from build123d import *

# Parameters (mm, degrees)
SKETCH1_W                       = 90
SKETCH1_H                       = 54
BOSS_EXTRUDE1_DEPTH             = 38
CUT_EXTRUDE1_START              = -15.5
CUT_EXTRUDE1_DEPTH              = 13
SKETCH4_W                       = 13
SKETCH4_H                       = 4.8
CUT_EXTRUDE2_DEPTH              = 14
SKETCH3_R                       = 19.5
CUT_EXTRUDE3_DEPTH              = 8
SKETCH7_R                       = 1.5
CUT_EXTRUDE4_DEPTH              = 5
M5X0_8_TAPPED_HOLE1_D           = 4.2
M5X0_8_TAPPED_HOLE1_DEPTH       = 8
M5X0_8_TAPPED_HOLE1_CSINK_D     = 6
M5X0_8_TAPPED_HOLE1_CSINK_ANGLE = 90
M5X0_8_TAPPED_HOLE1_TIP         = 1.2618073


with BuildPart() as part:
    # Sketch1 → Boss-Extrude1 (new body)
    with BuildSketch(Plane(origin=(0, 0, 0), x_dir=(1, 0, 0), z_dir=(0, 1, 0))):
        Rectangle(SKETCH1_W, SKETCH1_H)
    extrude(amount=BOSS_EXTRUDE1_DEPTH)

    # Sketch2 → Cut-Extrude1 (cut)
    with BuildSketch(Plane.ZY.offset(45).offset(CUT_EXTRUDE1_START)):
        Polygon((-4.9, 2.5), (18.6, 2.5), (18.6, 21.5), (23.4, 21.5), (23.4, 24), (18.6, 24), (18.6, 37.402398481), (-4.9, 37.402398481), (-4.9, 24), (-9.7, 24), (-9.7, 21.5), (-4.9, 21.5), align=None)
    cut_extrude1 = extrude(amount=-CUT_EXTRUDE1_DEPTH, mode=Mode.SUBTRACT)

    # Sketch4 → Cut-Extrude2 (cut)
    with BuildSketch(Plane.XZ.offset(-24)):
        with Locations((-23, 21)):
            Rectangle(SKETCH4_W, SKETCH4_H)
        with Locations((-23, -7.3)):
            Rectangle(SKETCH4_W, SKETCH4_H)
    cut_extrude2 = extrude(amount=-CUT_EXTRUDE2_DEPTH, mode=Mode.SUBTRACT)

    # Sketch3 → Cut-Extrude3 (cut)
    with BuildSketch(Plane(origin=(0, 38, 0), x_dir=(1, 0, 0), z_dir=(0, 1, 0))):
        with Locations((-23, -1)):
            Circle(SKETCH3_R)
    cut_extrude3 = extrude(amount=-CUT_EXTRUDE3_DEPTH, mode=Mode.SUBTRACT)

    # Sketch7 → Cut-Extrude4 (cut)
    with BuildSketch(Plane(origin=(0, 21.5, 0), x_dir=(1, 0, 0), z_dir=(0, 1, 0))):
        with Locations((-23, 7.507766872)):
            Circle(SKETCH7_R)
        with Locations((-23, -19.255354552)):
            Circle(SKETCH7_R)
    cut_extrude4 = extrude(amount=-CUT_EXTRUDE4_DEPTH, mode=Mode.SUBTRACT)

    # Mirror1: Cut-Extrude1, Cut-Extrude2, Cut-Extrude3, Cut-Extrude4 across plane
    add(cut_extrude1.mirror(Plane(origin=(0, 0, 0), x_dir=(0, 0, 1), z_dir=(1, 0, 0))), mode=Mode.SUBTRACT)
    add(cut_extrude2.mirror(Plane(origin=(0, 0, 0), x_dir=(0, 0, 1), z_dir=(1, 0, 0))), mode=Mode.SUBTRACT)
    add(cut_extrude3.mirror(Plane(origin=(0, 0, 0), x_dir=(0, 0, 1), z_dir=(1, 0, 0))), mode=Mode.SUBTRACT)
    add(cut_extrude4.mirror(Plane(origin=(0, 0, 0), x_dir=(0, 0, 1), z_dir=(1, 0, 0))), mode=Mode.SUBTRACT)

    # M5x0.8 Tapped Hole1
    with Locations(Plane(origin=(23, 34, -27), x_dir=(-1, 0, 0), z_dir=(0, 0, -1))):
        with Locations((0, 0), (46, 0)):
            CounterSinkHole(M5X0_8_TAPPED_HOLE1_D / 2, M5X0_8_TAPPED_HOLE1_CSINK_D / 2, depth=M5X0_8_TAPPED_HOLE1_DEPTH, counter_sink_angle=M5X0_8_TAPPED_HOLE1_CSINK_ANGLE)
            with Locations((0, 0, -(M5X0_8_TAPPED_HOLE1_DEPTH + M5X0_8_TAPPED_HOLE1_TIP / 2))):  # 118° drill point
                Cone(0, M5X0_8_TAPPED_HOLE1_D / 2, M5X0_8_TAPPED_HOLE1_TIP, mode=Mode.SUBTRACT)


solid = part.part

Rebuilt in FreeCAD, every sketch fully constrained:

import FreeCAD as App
import Part
import Sketcher

doc = App.newDocument("Part")
body = doc.addObject("PartDesign::Body", "Body")

sketch1 = body.newObject("Sketcher::SketchObject", "Sketch")
sketch1.AttachmentSupport = (doc.getObject("XZ_Plane"), [""])
sketch1.MapMode = "FlatFace"
sketch1.addGeometry(Part.LineSegment(App.Vector(-45, -27, 0), App.Vector(-45, 27, 0)), False)
sketch1.addGeometry(Part.LineSegment(App.Vector(-45, 27, 0), App.Vector(45, 27, 0)), False)
sketch1.addGeometry(Part.LineSegment(App.Vector(45, 27, 0), App.Vector(45, -27, 0)), False)
sketch1.addGeometry(Part.LineSegment(App.Vector(45, -27, 0), App.Vector(-45, -27, 0)), False)
sketch1.addConstraint(Sketcher.Constraint("Coincident", 0, 2, 1, 1))
sketch1.addConstraint(Sketcher.Constraint("Coincident", 1, 2, 2, 1))
sketch1.addConstraint(Sketcher.Constraint("Coincident", 2, 2, 3, 1))
sketch1.addConstraint(Sketcher.Constraint("Coincident", 3, 2, 0, 1))
sketch1.addConstraint(Sketcher.Constraint("Vertical", 0))
sketch1.addConstraint(Sketcher.Constraint("Horizontal", 1))
sketch1.addConstraint(Sketcher.Constraint("Vertical", 2))
sketch1.addConstraint(Sketcher.Constraint("Horizontal", 3))
sketch1.addConstraint(Sketcher.Constraint("Symmetric", 0, 2, 2, 2, -1, 1))
sketch1.addConstraint(Sketcher.Constraint("DistanceX", 1, 1, 1, 2, 90.0))
sketch1.addConstraint(Sketcher.Constraint("DistanceY", 0, 1, 0, 2, 54.0))
pad1 = body.newObject("PartDesign::Pad", "Pad")
pad1.Profile = sketch1
pad1.Length = 38
pad1.Reversed = True

sketch2 = body.newObject("Sketcher::SketchObject", "Sketch001")
sketch2.AttachmentSupport = (doc.getObject("YZ_Plane"), [""])
sketch2.MapMode = "FlatFace"
sketch2.AttachmentOffset = App.Placement(App.Vector(0, 0, -29.5), App.Rotation())
sketch2.addGeometry(Part.LineSegment(App.Vector(2.5, -4.9, 0), App.Vector(2.5, 18.6, 0)), False)
sketch2.addGeometry(Part.LineSegment(App.Vector(2.5, 18.6, 0), App.Vector(21.5, 18.6, 0)), False)
sketch2.addGeometry(Part.LineSegment(App.Vector(21.5, 18.6, 0), App.Vector(21.5, 23.4, 0)), False)
sketch2.addGeometry(Part.LineSegment(App.Vector(21.5, 23.4, 0), App.Vector(24, 23.4, 0)), False)
sketch2.addGeometry(Part.LineSegment(App.Vector(24, 23.4, 0), App.Vector(24, 18.6, 0)), False)
sketch2.addGeometry(Part.LineSegment(App.Vector(24, 18.6, 0), App.Vector(37.4, 18.6, 0)), False)
sketch2.addGeometry(Part.LineSegment(App.Vector(37.4, 18.6, 0), App.Vector(37.4, -4.9, 0)), False)
sketch2.addGeometry(Part.LineSegment(App.Vector(37.4, -4.9, 0), App.Vector(24, -4.9, 0)), False)
sketch2.addGeometry(Part.LineSegment(App.Vector(24, -4.9, 0), App.Vector(24, -9.7, 0)), False)
sketch2.addGeometry(Part.LineSegment(App.Vector(24, -9.7, 0), App.Vector(21.5, -9.7, 0)), False)
sketch2.addGeometry(Part.LineSegment(App.Vector(21.5, -9.7, 0), App.Vector(21.5, -4.9, 0)), False)
sketch2.addGeometry(Part.LineSegment(App.Vector(21.5, -4.9, 0), App.Vector(2.5, -4.9, 0)), False)
sketch2.addConstraint(Sketcher.Constraint("Coincident", 0, 2, 1, 1))
sketch2.addConstraint(Sketcher.Constraint("Coincident", 1, 2, 2, 1))
sketch2.addConstraint(Sketcher.Constraint("Coincident", 2, 2, 3, 1))
sketch2.addConstraint(Sketcher.Constraint("Coincident", 3, 2, 4, 1))
sketch2.addConstraint(Sketcher.Constraint("Coincident", 4, 2, 5, 1))
sketch2.addConstraint(Sketcher.Constraint("Coincident", 5, 2, 6, 1))
sketch2.addConstraint(Sketcher.Constraint("Coincident", 6, 2, 7, 1))
sketch2.addConstraint(Sketcher.Constraint("Coincident", 7, 2, 8, 1))
sketch2.addConstraint(Sketcher.Constraint("Coincident", 8, 2, 9, 1))
sketch2.addConstraint(Sketcher.Constraint("Coincident", 9, 2, 10, 1))
sketch2.addConstraint(Sketcher.Constraint("Coincident", 10, 2, 11, 1))
sketch2.addConstraint(Sketcher.Constraint("Coincident", 11, 2, 0, 1))
sketch2.addConstraint(Sketcher.Constraint("Vertical", 0))
sketch2.addConstraint(Sketcher.Constraint("Horizontal", 1))
sketch2.addConstraint(Sketcher.Constraint("Vertical", 2))
sketch2.addConstraint(Sketcher.Constraint("Horizontal", 3))
sketch2.addConstraint(Sketcher.Constraint("Vertical", 4))
sketch2.addConstraint(Sketcher.Constraint("Horizontal", 5))
sketch2.addConstraint(Sketcher.Constraint("Vertical", 6))
sketch2.addConstraint(Sketcher.Constraint("Horizontal", 7))
sketch2.addConstraint(Sketcher.Constraint("Vertical", 8))
sketch2.addConstraint(Sketcher.Constraint("Horizontal", 9))
sketch2.addConstraint(Sketcher.Constraint("Vertical", 10))
sketch2.addConstraint(Sketcher.Constraint("Horizontal", 11))
sketch2.addConstraint(Sketcher.Constraint("Horizontal", 1, 2, 4, 2))
sketch2.addConstraint(Sketcher.Constraint("Horizontal", 7, 2, 10, 2))
sketch2.addConstraint(Sketcher.Constraint("Vertical", 4, 2, 7, 2))
sketch2.addConstraint(Sketcher.Constraint("Vertical", 2, 2, 9, 2))
sketch2.addConstraint(Sketcher.Constraint("Equal", 4, 8))
sketch2.addConstraint(Sketcher.Constraint("DistanceX", 1, 1, 1, 2, 19.0))
sketch2.addConstraint(Sketcher.Constraint("DistanceX", 3, 1, 3, 2, 2.5))
sketch2.addConstraint(Sketcher.Constraint("DistanceY", 0, 1, 0, 2, 23.5))
sketch2.addConstraint(Sketcher.Constraint("DistanceY", 2, 1, 2, 2, 4.8))
sketch2.addConstraint(Sketcher.Constraint("DistanceX", -1, 1, 3, 2, 24.0))
sketch2.addConstraint(Sketcher.Constraint("DistanceY", -1, 1, 0, 2, 18.6))
sketch2.addConstraint(Sketcher.Constraint("DistanceX", 5, 1, 5, 2, 13.402398))
pocket1 = body.newObject("PartDesign::Pocket", "Pocket")
pocket1.Profile = sketch2
pocket1.Length = 13
pocket1.Reversed = True

sketch3 = body.newObject("Sketcher::SketchObject", "Sketch002")
sketch3.AttachmentSupport = (doc.getObject("XZ_Plane"), [""])
sketch3.MapMode = "FlatFace"
sketch3.AttachmentOffset = App.Placement(App.Vector(0, 0, -24), App.Rotation())
sketch3.addGeometry(Part.LineSegment(App.Vector(-29.5, 23.4, 0), App.Vector(-29.5, 18.6, 0)), False)
sketch3.addGeometry(Part.LineSegment(App.Vector(-29.5, 18.6, 0), App.Vector(-16.5, 18.6, 0)), False)
sketch3.addGeometry(Part.LineSegment(App.Vector(-16.5, 18.6, 0), App.Vector(-16.5, 23.4, 0)), False)
sketch3.addGeometry(Part.LineSegment(App.Vector(-16.5, 23.4, 0), App.Vector(-29.5, 23.4, 0)), False)
sketch3.addGeometry(Part.LineSegment(App.Vector(-29.5, -4.9, 0), App.Vector(-29.5, -9.7, 0)), False)
sketch3.addGeometry(Part.LineSegment(App.Vector(-29.5, -9.7, 0), App.Vector(-16.5, -9.7, 0)), False)
sketch3.addGeometry(Part.LineSegment(App.Vector(-16.5, -9.7, 0), App.Vector(-16.5, -4.9, 0)), False)
sketch3.addGeometry(Part.LineSegment(App.Vector(-16.5, -4.9, 0), App.Vector(-29.5, -4.9, 0)), False)
sketch3.addConstraint(Sketcher.Constraint("Coincident", 0, 2, 1, 1))
sketch3.addConstraint(Sketcher.Constraint("Coincident", 1, 2, 2, 1))
sketch3.addConstraint(Sketcher.Constraint("Coincident", 2, 2, 3, 1))
sketch3.addConstraint(Sketcher.Constraint("Coincident", 3, 2, 0, 1))
sketch3.addConstraint(Sketcher.Constraint("Coincident", 4, 2, 5, 1))
sketch3.addConstraint(Sketcher.Constraint("Coincident", 5, 2, 6, 1))
sketch3.addConstraint(Sketcher.Constraint("Coincident", 6, 2, 7, 1))
sketch3.addConstraint(Sketcher.Constraint("Coincident", 7, 2, 4, 1))
sketch3.addConstraint(Sketcher.Constraint("Vertical", 0))
sketch3.addConstraint(Sketcher.Constraint("Horizontal", 1))
sketch3.addConstraint(Sketcher.Constraint("Vertical", 2))
sketch3.addConstraint(Sketcher.Constraint("Horizontal", 3))
sketch3.addConstraint(Sketcher.Constraint("Vertical", 4))
sketch3.addConstraint(Sketcher.Constraint("Horizontal", 5))
sketch3.addConstraint(Sketcher.Constraint("Vertical", 6))
sketch3.addConstraint(Sketcher.Constraint("Horizontal", 7))
sketch3.addConstraint(Sketcher.Constraint("Vertical", 3, 2, 4, 2))
sketch3.addConstraint(Sketcher.Constraint("Vertical", 2, 2, 5, 2))
sketch3.addConstraint(Sketcher.Constraint("Equal", 2, 4))
sketch3.addConstraint(Sketcher.Constraint("DistanceX", 1, 1, 1, 2, 13.0))
sketch3.addConstraint(Sketcher.Constraint("DistanceY", 0, 2, 0, 1, 4.8))
sketch3.addConstraint(Sketcher.Constraint("DistanceX", 0, 2, -1, 1, 29.5))
sketch3.addConstraint(Sketcher.Constraint("DistanceY", -1, 1, 0, 2, 18.6))
sketch3.addConstraint(Sketcher.Constraint("DistanceY", 4, 2, -1, 1, 9.7))
pocket2 = body.newObject("PartDesign::Pocket", "Pocket001")
pocket2.Profile = sketch3
pocket2.Length = 14

sketch4 = body.newObject("Sketcher::SketchObject", "Sketch003")
sketch4.AttachmentSupport = (doc.getObject("XZ_Plane"), [""])
sketch4.MapMode = "FlatFace"
sketch4.AttachmentOffset = App.Placement(App.Vector(0, 0, -38), App.Rotation())
sketch4.addGeometry(Part.Circle(App.Vector(-23, 1, 0), App.Vector(0, 0, 1), 20), False)
sketch4.addConstraint(Sketcher.Constraint("Diameter", 0, 39.0))
sketch4.addConstraint(Sketcher.Constraint("DistanceX", 0, 3, -1, 1, 23.0))
sketch4.addConstraint(Sketcher.Constraint("DistanceY", -1, 1, 0, 3, 1.0))
pocket3 = body.newObject("PartDesign::Pocket", "Pocket002")
pocket3.Profile = sketch4
pocket3.Length = 8
pocket3.Reversed = True

sketch5 = body.newObject("Sketcher::SketchObject", "Sketch004")
sketch5.AttachmentSupport = (doc.getObject("XZ_Plane"), [""])
sketch5.MapMode = "FlatFace"
sketch5.AttachmentOffset = App.Placement(App.Vector(0, 0, -21.5), App.Rotation())
sketch5.addGeometry(Part.Circle(App.Vector(-23, -7.5, 0), App.Vector(0, 0, 1), 1.5), False)
sketch5.addGeometry(Part.Circle(App.Vector(-23, 19.3, 0), App.Vector(0, 0, 1), 1.5), False)
sketch5.addConstraint(Sketcher.Constraint("Equal", 0, 1))
sketch5.addConstraint(Sketcher.Constraint("Vertical", 0, 3, 1, 3))
sketch5.addConstraint(Sketcher.Constraint("Diameter", 0, 3.0))
sketch5.addConstraint(Sketcher.Constraint("DistanceX", 0, 3, -1, 1, 23.0))
sketch5.addConstraint(Sketcher.Constraint("DistanceY", 0, 3, 1, 3, 26.763121))
sketch5.addConstraint(Sketcher.Constraint("DistanceY", 0, 3, -1, 1, 7.507767))
pocket4 = body.newObject("PartDesign::Pocket", "Pocket003")
pocket4.Profile = sketch5
pocket4.Length = 5
pocket4.Reversed = True
doc.recompute()

mirrored = body.newObject("PartDesign::Mirrored", "Mirrored")
mirrored.Originals = [pocket1, pocket2, pocket3, pocket4]
mirrored.MirrorPlane = (doc.getObject("YZ_Plane"), [""])
body.Tip = mirrored

sketch6 = body.newObject("Sketcher::SketchObject", "Sketch005")
sketch6.AttachmentSupport = (doc.getObject("XY_Plane"), [""])
sketch6.MapMode = "FlatFace"
sketch6.AttachmentOffset = App.Placement(App.Vector(0, 0, -27), App.Rotation())
sketch6.addGeometry(Part.Circle(App.Vector(23, 34, 0), App.Vector(0, 0, 1), 2.1), False)
sketch6.addGeometry(Part.Circle(App.Vector(-23, 34, 0), App.Vector(0, 0, 1), 2.1), False)
sketch6.addConstraint(Sketcher.Constraint("Equal", 0, 1))
sketch6.addConstraint(Sketcher.Constraint("Symmetric", 0, 3, 1, 3, -2))
sketch6.addConstraint(Sketcher.Constraint("Diameter", 0, 4.2))
sketch6.addConstraint(Sketcher.Constraint("DistanceX", -1, 1, 0, 3, 23.0))
sketch6.addConstraint(Sketcher.Constraint("DistanceY", -1, 1, 0, 3, 34.0))
doc.recompute()
hole = body.newObject("PartDesign::Hole", "Hole")
hole.Profile = sketch6
hole.ThreadType = "None"
hole.Diameter = 4.2
hole.DepthType = "Dimension"
hole.Depth = 8
hole.DrillPoint = "Angled"
hole.DrillPointAngle = 118
hole.HoleCutType = "Countersink"
hole.HoleCutDiameter = 6
hole.HoleCutCountersinkAngle = 90
hole.Reversed = True

doc.recompute()
